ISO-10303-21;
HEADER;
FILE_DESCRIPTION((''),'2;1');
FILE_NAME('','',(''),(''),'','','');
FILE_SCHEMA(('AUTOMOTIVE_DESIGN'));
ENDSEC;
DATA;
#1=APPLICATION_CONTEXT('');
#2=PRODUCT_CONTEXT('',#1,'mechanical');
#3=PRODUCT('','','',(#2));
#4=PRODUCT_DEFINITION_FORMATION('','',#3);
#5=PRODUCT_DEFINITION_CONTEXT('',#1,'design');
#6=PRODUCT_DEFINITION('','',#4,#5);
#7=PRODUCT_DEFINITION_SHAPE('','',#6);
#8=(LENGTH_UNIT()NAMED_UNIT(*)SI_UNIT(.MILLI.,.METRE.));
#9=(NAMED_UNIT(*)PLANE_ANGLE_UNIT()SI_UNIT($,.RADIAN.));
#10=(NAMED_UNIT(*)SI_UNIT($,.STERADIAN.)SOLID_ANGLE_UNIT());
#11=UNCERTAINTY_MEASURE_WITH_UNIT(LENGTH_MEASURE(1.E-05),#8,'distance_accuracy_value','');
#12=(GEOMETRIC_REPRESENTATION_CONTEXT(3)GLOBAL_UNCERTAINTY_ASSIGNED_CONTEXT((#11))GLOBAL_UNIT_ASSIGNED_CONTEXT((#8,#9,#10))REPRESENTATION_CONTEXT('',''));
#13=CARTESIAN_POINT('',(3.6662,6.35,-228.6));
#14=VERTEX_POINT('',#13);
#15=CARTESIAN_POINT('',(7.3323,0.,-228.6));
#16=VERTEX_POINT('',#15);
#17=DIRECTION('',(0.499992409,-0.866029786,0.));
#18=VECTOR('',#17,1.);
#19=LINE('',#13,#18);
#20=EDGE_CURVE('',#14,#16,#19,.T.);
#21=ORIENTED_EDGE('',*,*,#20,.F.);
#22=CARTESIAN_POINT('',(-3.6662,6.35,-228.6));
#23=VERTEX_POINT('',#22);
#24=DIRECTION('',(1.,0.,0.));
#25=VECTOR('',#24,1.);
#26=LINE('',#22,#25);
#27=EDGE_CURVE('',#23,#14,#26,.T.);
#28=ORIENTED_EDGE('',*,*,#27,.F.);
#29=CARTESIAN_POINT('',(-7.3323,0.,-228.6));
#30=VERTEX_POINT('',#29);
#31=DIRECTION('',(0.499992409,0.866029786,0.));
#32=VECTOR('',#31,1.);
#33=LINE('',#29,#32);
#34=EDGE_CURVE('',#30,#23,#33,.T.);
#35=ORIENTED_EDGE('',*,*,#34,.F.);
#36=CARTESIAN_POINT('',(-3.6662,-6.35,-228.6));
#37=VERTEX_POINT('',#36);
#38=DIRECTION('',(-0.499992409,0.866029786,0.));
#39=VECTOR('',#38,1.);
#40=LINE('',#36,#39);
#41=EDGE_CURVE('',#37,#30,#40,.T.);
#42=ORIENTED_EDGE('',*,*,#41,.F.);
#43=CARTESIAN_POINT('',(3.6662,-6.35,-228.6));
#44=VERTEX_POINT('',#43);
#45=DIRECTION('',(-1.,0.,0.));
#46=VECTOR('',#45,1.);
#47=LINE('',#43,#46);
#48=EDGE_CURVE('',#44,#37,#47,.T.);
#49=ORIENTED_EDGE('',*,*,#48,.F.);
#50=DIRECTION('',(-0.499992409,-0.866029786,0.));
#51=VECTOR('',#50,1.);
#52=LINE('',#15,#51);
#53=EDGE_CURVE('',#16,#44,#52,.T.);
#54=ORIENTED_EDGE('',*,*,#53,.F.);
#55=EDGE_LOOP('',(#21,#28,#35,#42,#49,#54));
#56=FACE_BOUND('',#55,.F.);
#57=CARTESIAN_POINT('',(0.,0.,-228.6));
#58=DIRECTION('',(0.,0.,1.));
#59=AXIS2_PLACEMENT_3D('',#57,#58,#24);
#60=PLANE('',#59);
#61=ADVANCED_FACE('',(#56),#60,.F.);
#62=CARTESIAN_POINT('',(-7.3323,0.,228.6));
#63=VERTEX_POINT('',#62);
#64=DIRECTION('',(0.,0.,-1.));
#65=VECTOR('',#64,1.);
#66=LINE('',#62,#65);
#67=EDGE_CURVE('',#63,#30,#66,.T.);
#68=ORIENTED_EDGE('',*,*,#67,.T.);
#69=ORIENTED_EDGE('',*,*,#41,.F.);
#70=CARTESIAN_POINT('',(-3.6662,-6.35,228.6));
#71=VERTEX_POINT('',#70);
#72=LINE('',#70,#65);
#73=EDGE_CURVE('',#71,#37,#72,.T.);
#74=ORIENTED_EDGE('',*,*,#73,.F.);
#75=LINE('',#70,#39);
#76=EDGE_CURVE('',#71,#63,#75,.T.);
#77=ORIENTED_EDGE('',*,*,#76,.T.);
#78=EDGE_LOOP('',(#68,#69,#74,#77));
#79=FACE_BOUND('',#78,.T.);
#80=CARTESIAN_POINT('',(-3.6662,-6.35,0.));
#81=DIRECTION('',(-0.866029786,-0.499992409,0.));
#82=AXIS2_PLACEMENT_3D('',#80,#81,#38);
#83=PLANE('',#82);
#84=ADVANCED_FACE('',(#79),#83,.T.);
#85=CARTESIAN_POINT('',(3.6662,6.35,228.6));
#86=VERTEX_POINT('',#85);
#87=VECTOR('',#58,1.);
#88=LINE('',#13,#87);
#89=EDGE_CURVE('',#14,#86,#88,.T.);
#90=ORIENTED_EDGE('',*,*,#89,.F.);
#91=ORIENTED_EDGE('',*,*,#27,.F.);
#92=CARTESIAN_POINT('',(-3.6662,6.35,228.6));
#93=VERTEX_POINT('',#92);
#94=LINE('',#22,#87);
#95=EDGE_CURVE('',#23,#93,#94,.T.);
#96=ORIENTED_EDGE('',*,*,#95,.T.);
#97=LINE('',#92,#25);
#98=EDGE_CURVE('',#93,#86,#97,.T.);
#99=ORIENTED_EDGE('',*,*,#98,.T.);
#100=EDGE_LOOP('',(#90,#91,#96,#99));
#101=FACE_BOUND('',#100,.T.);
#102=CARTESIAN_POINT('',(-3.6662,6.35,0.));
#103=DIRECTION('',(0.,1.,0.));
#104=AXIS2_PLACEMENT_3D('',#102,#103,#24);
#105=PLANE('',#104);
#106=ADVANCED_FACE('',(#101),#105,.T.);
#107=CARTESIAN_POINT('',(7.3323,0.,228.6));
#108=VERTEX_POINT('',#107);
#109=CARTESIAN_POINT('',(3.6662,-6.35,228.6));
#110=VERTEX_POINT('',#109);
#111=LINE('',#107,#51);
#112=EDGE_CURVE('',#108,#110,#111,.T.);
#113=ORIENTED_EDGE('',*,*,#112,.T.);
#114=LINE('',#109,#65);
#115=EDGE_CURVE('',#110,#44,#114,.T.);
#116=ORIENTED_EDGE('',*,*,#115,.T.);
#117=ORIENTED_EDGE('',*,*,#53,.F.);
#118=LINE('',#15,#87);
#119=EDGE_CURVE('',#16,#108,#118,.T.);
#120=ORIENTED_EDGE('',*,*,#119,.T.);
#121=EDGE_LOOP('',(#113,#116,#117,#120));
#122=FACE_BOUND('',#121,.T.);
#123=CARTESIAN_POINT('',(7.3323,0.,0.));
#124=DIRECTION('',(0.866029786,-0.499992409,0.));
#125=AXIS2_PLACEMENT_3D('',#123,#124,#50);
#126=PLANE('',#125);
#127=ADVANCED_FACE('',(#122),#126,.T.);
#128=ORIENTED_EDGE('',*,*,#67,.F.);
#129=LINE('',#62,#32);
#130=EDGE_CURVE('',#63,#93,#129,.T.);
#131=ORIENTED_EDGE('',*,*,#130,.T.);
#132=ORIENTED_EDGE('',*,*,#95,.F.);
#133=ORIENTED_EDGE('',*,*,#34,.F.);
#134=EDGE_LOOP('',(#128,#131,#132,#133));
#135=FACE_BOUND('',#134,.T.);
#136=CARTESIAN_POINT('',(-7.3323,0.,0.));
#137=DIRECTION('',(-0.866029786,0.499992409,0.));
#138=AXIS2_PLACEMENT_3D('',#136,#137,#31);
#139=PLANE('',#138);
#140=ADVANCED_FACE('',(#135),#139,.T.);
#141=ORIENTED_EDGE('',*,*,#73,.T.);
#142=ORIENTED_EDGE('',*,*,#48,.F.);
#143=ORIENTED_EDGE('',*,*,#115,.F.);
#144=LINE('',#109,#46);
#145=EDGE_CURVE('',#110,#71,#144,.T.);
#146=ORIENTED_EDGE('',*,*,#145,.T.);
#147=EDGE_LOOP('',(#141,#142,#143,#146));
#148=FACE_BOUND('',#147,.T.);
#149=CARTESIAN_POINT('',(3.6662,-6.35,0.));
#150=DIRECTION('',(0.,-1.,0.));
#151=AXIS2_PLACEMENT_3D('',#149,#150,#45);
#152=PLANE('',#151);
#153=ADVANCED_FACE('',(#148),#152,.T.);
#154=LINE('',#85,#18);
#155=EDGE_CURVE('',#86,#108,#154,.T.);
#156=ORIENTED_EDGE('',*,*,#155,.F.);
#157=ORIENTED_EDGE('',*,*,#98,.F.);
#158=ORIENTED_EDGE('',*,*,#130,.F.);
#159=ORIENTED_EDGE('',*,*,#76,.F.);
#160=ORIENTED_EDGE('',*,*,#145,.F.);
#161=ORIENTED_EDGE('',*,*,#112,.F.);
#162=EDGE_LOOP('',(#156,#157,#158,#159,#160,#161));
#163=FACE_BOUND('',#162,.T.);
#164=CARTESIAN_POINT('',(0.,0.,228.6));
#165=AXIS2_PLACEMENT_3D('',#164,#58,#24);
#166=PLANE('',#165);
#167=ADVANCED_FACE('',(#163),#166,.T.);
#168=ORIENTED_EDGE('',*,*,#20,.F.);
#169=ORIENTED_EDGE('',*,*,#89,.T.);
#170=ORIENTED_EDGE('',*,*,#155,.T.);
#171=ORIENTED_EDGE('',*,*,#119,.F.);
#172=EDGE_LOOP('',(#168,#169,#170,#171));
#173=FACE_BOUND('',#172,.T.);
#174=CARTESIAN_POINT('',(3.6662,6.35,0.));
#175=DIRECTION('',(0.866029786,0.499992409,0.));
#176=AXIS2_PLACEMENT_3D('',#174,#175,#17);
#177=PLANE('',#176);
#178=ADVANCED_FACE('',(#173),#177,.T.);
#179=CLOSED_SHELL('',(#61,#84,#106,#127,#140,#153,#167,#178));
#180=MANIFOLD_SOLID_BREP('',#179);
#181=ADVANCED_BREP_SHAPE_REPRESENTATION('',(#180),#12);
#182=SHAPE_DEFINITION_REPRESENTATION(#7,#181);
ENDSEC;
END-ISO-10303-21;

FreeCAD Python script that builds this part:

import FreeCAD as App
import Part
import Sketcher
from FreeCAD import Vector
Q = App.Units.Quantity

doc = App.newDocument("Part")
params = doc.addObject("Spreadsheet::Sheet", "Params")
for row, (alias, value) in enumerate([
    ("pad1_length", "18 in"),
], start=1):
    params.set(f"A{row}", alias)
    params.set(f"B{row}", "=" + value)
    params.setAlias(f"B{row}", alias)

body = doc.addObject("PartDesign::Body", "Body")

# Sketch on XY plane
sketch1 = doc.addObject("Sketcher::SketchObject", "Sketch")
body.addObject(sketch1)
sketch1.AttachmentSupport = (doc.XY_Plane, [""])
sketch1.MapMode = "FlatFace"
sketch1.addGeometry([
    Part.LineSegment(Vector(3.6662, -6.35, 0), Vector(7.3323, 0, 0)),  # 0
    Part.LineSegment(Vector(7.3323, 0, 0), Vector(3.6662, 6.35, 0)),  # 1
    Part.LineSegment(Vector(3.6662, 6.35, 0), Vector(-3.6662, 6.35, 0)),  # 2
    Part.LineSegment(Vector(-3.6662, 6.35, 0), Vector(-7.3323, 0, 0)),  # 3
    Part.LineSegment(Vector(-7.3323, 0, 0), Vector(-3.6662, -6.35, 0)),  # 4
    Part.LineSegment(Vector(-3.6662, -6.35, 0), Vector(3.6662, -6.35, 0)),  # 5
], False)
sketch1.addConstraint([
    Sketcher.Constraint("Coincident", 0, 2, 1, 1),
    Sketcher.Constraint("Coincident", 1, 2, 2, 1),
    Sketcher.Constraint("Coincident", 2, 2, 3, 1),
    Sketcher.Constraint("Coincident", 3, 2, 4, 1),
    Sketcher.Constraint("Coincident", 4, 2, 5, 1),
    Sketcher.Constraint("Coincident", 5, 2, 0, 1),
    Sketcher.Constraint("Horizontal", 2),
    Sketcher.Constraint("Horizontal", 5),
    Sketcher.Constraint("Symmetric", 0, 2, 3, 2, -1, 1),
    Sketcher.Constraint("Symmetric", 1, 2, 4, 2, -1, 1),
    Sketcher.Constraint("PointOnObject", 0, 2, -1),
    Sketcher.Constraint("Parallel", 0, 3),
    Sketcher.Constraint("Vertical", 2, 2, 4, 2),
    Sketcher.Constraint("DistanceY", 4, 2, 2, 2, Q("0.5 in")),
    Sketcher.Constraint("Angle", 0, Q("60.0005 deg")),
    Sketcher.Constraint("DistanceX", 2, 2, 0, 2, Q("0.433 in")),
])
pad1 = doc.addObject("PartDesign::Pad", "Pad")
body.addObject(pad1)
pad1.Profile = sketch1
pad1.setExpression("Length", "Params.pad1_length")
pad1.Midplane = True

doc.recompute()
